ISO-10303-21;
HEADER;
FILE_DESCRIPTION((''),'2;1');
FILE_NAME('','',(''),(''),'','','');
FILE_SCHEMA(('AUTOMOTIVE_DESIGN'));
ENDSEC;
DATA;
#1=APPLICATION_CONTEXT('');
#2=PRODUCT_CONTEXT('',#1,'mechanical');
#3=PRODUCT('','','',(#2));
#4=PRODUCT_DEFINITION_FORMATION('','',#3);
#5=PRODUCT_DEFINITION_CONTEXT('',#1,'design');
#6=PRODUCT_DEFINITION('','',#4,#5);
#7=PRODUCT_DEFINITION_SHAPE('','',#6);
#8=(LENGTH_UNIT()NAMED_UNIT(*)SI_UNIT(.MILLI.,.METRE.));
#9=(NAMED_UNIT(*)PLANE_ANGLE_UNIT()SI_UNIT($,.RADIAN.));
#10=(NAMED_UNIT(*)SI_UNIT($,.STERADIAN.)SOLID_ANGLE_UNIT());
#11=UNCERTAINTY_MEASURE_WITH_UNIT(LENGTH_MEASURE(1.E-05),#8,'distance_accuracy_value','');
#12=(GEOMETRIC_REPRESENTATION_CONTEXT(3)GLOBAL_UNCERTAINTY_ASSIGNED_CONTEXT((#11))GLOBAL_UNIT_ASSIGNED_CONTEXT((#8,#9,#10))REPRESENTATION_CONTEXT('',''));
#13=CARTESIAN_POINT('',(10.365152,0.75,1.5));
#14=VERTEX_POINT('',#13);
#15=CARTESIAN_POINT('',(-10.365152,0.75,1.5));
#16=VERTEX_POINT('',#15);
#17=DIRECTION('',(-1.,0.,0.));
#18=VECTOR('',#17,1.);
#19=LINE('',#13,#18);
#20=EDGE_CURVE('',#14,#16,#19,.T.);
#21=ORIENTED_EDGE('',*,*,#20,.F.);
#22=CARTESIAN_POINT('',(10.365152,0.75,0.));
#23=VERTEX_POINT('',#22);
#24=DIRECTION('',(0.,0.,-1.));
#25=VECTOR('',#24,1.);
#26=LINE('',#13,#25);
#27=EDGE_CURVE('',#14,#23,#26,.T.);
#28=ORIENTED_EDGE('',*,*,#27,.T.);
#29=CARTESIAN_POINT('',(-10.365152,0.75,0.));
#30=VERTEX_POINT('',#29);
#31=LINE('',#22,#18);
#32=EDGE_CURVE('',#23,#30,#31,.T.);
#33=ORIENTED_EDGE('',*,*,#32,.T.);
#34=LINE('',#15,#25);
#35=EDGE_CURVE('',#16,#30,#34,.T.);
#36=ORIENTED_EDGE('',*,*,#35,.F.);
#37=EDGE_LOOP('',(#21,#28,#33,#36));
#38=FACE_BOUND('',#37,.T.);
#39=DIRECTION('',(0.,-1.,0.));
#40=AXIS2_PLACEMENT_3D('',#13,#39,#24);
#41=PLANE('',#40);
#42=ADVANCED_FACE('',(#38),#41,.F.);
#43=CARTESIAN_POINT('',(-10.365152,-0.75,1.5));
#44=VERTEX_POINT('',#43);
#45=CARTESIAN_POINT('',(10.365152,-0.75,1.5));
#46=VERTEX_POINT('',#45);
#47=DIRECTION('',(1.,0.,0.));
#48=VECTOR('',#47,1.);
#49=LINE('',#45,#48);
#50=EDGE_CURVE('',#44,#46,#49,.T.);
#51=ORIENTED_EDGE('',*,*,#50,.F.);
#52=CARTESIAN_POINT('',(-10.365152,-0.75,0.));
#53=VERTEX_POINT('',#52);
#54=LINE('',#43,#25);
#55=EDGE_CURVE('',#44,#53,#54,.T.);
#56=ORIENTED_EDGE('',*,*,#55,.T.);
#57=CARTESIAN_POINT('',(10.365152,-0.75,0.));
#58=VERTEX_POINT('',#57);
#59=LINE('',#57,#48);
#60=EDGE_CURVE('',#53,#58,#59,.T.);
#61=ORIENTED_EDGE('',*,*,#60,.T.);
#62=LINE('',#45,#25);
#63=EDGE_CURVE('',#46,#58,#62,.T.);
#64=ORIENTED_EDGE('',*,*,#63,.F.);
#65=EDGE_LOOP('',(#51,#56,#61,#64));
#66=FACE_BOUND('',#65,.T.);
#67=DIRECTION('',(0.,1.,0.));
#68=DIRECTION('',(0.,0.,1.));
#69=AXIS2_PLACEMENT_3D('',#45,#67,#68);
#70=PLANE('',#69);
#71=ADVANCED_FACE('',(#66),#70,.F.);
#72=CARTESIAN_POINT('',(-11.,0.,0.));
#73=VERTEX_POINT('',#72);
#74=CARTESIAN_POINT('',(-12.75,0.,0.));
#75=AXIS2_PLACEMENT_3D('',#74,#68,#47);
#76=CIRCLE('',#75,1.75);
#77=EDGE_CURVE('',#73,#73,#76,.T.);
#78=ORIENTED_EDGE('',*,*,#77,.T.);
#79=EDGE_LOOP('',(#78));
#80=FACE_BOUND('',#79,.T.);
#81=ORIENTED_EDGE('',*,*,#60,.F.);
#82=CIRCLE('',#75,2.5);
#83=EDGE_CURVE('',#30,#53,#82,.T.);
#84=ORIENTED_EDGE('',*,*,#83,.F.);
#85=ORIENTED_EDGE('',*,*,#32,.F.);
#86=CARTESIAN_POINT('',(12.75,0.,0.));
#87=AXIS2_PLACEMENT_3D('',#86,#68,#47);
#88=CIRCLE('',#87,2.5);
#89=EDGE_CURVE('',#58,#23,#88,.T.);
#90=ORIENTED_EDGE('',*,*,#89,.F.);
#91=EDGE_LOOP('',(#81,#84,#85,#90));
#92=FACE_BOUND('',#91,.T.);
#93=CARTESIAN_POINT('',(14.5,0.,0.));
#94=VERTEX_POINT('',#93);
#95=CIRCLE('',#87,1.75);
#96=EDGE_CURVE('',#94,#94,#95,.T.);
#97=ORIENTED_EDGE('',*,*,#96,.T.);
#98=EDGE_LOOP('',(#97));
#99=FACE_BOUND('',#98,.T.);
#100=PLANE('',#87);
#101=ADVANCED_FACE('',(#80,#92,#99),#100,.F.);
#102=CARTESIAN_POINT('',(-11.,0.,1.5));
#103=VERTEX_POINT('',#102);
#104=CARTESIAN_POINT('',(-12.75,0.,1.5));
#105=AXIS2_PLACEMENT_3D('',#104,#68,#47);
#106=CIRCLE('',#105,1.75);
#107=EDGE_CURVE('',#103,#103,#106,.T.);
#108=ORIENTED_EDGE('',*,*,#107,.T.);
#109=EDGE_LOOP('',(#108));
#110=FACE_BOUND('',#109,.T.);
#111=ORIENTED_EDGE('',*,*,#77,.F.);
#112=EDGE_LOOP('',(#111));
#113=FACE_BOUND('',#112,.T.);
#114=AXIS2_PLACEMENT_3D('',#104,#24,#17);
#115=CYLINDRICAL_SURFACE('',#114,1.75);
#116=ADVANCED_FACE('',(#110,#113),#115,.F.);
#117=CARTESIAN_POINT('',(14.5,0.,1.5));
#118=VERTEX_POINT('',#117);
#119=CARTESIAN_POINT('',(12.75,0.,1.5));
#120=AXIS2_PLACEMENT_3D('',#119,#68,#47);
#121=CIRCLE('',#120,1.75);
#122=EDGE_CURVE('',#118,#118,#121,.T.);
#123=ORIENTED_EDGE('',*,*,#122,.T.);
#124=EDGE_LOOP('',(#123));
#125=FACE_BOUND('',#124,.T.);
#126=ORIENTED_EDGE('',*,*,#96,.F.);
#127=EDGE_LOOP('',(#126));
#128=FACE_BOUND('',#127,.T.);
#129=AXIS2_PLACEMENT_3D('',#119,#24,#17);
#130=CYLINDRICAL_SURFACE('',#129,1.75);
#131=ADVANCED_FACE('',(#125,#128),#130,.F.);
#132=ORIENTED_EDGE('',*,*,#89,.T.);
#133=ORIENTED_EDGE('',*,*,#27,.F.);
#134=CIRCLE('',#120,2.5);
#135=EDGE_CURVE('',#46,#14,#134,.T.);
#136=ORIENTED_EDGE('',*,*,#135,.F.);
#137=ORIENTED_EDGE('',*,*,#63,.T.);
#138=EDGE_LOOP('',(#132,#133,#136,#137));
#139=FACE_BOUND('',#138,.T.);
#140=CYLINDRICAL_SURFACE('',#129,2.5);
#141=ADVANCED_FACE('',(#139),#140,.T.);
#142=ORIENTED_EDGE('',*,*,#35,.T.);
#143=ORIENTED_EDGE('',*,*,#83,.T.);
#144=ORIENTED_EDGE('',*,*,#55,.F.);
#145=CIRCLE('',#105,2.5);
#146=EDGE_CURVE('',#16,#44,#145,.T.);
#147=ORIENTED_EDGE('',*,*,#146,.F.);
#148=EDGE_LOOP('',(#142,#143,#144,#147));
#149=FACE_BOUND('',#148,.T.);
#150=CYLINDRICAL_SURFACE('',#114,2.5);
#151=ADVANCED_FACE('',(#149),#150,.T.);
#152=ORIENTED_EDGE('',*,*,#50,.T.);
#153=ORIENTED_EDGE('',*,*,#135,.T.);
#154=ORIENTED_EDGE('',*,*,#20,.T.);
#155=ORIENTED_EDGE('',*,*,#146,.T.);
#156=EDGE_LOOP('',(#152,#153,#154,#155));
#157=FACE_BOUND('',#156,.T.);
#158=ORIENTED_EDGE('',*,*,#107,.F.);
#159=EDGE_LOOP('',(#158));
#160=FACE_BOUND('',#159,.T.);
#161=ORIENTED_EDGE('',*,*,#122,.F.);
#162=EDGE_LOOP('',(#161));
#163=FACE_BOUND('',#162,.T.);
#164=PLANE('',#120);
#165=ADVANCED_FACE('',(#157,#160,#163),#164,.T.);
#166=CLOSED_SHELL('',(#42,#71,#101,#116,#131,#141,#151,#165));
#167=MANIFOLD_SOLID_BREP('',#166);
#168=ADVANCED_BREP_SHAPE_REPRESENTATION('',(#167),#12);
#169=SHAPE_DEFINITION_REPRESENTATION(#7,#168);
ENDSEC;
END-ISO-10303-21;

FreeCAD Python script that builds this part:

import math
import FreeCAD as App
import Part
import Sketcher

V = App.Vector

doc = App.newDocument("Part")
body = doc.addObject("PartDesign::Body", "Body")

sketch1 = doc.addObject("Sketcher::SketchObject", "Sketch")
body.addObject(sketch1)
sketch1.AttachmentSupport = (doc.XY_Plane, [""])
sketch1.MapMode = "FlatFace"
sketch1.addGeometry([
    Part.LineSegment(V(10.4, 0.8, 0), V(-10.4, 0.8, 0)),
    Part.ArcOfCircle(Part.Circle(V(-12.8, 0, 0), V(0, 0, 1), 2.5), math.radians(17), math.radians(343)),
    Part.LineSegment(V(-10.4, -0.8, 0), V(10.4, -0.8, 0)),
    Part.ArcOfCircle(Part.Circle(V(12.8, 0, 0), V(0, 0, 1), 2.5), math.radians(-163), math.radians(163)),
    Part.Circle(V(-12.8, 0, 0), V(0, 0, 1), 1.8),
    Part.Circle(V(12.8, 0, 0), V(0, 0, 1), 1.8),
], False)
sketch1.addConstraint([
    Sketcher.Constraint("Coincident", 0, 2, 1, 1),
    Sketcher.Constraint("Coincident", 1, 2, 2, 1),
    Sketcher.Constraint("Coincident", 2, 2, 3, 1),
    Sketcher.Constraint("Coincident", 3, 2, 0, 1),
    Sketcher.Constraint("Horizontal", 0),
    Sketcher.Constraint("Horizontal", 2),
    Sketcher.Constraint("Coincident", 4, 3, 1, 3),
    Sketcher.Constraint("Coincident", 5, 3, 3, 3),
    Sketcher.Constraint("Equal", 1, 3),
    Sketcher.Constraint("Equal", 4, 5),
    Sketcher.Constraint("Symmetric", 1, 3, 3, 3, -1, 1),
    Sketcher.Constraint("Symmetric", 0, 2, 1, 2, -1),
    Sketcher.Constraint("Diameter", 4, 3.5),
    Sketcher.Constraint("Radius", 1, 2.5),
    Sketcher.Constraint("DistanceX", 1, 3, 3, 3, 25.5),
    Sketcher.Constraint("DistanceY", 1, 2, 0, 2, 1.5),
])
pad1 = doc.addObject("PartDesign::Pad", "Pad")
body.addObject(pad1)
pad1.Profile = sketch1
pad1.Length = 1.5

doc.recompute()
